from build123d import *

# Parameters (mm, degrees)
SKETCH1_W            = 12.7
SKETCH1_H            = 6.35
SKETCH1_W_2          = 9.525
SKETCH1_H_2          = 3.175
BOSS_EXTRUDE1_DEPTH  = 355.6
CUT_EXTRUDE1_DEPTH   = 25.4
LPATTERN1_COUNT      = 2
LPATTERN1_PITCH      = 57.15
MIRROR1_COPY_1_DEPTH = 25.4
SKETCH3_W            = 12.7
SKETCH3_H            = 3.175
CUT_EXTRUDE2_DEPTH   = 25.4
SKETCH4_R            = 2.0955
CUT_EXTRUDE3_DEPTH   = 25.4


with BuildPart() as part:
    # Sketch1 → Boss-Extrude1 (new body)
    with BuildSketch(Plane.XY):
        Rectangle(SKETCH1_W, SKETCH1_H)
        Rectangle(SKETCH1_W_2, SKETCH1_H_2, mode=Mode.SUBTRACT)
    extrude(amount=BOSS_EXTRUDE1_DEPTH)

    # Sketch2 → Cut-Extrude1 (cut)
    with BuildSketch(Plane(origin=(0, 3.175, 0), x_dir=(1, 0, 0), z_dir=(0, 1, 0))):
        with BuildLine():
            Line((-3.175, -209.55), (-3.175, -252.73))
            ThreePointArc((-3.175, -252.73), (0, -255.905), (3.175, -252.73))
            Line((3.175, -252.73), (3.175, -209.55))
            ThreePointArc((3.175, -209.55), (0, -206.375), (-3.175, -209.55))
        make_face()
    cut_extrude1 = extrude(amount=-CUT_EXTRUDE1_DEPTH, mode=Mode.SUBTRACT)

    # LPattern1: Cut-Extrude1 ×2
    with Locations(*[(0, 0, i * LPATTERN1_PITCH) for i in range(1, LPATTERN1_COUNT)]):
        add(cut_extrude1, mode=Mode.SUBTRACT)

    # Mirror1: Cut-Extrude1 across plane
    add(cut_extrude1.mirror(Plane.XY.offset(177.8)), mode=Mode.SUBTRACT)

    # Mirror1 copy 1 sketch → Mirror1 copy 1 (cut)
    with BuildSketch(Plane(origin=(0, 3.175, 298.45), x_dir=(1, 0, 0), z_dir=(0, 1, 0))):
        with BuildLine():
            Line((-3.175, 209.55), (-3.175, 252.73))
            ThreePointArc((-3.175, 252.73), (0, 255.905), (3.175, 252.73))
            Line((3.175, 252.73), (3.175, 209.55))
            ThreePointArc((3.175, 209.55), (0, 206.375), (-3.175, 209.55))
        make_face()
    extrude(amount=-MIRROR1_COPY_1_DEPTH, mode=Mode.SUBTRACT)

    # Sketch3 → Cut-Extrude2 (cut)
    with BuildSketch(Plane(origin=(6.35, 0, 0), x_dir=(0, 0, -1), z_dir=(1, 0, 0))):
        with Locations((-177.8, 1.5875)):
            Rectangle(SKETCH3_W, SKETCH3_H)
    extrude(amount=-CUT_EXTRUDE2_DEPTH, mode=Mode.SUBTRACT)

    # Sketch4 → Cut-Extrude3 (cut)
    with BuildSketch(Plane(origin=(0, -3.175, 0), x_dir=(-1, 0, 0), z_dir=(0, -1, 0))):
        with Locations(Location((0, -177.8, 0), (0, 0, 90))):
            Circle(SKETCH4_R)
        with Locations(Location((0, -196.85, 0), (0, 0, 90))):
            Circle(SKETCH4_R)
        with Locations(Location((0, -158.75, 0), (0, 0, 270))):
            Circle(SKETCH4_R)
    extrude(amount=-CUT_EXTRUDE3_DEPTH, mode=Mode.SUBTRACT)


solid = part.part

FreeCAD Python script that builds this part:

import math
import FreeCAD as App
import Part
import Sketcher
from FreeCAD import Vector
Q = App.Units.Quantity


def add_polygon(sketch, points):
    """Adds a closed chain of lines whose ends are joined by coincident constraints."""
    first, n = sketch.GeometryCount, len(points)
    for a, b in zip(points, points[1:] + points[:1]):
        sketch.addGeometry(Part.LineSegment(App.Vector(*a, 0), App.Vector(*b, 0)), False)
    for i in range(n):
        sketch.addConstraint(Sketcher.Constraint("Coincident", first + i, 2, first + (i + 1) % n, 1))

doc = App.newDocument("Part")
body = doc.addObject("PartDesign::Body", "Body")

sketch1 = body.newObject("Sketcher::SketchObject", "Sketch")
sketch1.AttachmentSupport = (doc.getObject("XY_Plane"), [""])
sketch1.MapMode = "FlatFace"
add_polygon(sketch1, [(-6.35, 3.175), (-6.35, -3.175), (6.35, -3.175), (6.35, 3.175)])
add_polygon(sketch1, [(4.7625, -1.5875), (-4.7625, -1.5875), (-4.7625, 1.5875), (4.7625, 1.5875)])
sketch1.addConstraint(Sketcher.Constraint("Vertical", 0))
sketch1.addConstraint(Sketcher.Constraint("Horizontal", 1))
sketch1.addConstraint(Sketcher.Constraint("Vertical", 2))
sketch1.addConstraint(Sketcher.Constraint("Horizontal", 3))
sketch1.addConstraint(Sketcher.Constraint("Horizontal", 4))
sketch1.addConstraint(Sketcher.Constraint("Vertical", 5))
sketch1.addConstraint(Sketcher.Constraint("Horizontal", 6))
sketch1.addConstraint(Sketcher.Constraint("Vertical", 7))
sketch1.addConstraint(Sketcher.Constraint("Symmetric", 0, 2, 2, 2, -1, 1))
sketch1.addConstraint(Sketcher.Constraint("Symmetric", 4, 2, 6, 2, -1, 1))
sketch1.addConstraint(Sketcher.Constraint("DistanceX", 1, 1, 1, 2, Q("0.5 in")))
sketch1.addConstraint(Sketcher.Constraint("DistanceY", 0, 2, 0, 1, Q("0.25 in")))
sketch1.addConstraint(Sketcher.Constraint("DistanceX", 4, 2, 4, 1, Q("0.375 in")))
sketch1.addConstraint(Sketcher.Constraint("DistanceY", 5, 1, 5, 2, Q("0.125 in")))
pad1 = body.newObject("PartDesign::Pad", "Pad")
pad1.Profile = sketch1
pad1.Length = Q("14 in")

sketch2 = body.newObject("Sketcher::SketchObject", "Sketch001")
sketch2.AttachmentSupport = (doc.getObject("XZ_Plane"), [""])
sketch2.MapMode = "FlatFace"
sketch2.AttachmentOffset = App.Placement(Vector(0, 0, -0.125 * 25.4), App.Rotation())
sketch2.addGeometry(Part.LineSegment(Vector(-3.175, 209.55, 0), Vector(-3.175, 252.73, 0)), False)
sketch2.addGeometry(Part.ArcOfCircle(Part.Circle(Vector(0, 252.73, 0), Vector(0, 0, 1), 3.175), math.radians(0), math.radians(180)), False)
sketch2.addGeometry(Part.LineSegment(Vector(3.175, 252.73, 0), Vector(3.175, 209.55, 0)), False)
sketch2.addGeometry(Part.ArcOfCircle(Part.Circle(Vector(0, 209.55, 0), Vector(0, 0, 1), 3.175), math.radians(180), math.radians(360)), False)
sketch2.addConstraint(Sketcher.Constraint("Tangent", 0, 2, 1, 2))
sketch2.addConstraint(Sketcher.Constraint("Tangent", 1, 1, 2, 1))
sketch2.addConstraint(Sketcher.Constraint("Tangent", 2, 2, 3, 2))
sketch2.addConstraint(Sketcher.Constraint("Tangent", 3, 1, 0, 1))
sketch2.addConstraint(Sketcher.Constraint("Vertical", 0))
sketch2.addConstraint(Sketcher.Constraint("Vertical", 2))
sketch2.addConstraint(Sketcher.Constraint("PointOnObject", 1, 3, -2))
sketch2.addConstraint(Sketcher.Constraint("DistanceY", 0, 1, 0, 2, Q("1.7 in")))
sketch2.addConstraint(Sketcher.Constraint("Radius", 1, Q("0.125 in")))
sketch2.addConstraint(Sketcher.Constraint("DistanceY", -1, 1, 1, 3, Q("9.95 in")))
pocket1 = body.newObject("PartDesign::Pocket", "Pocket")
pocket1.Profile = sketch2
pocket1.Length = Q("1 in")
pocket1.Reversed = True
doc.recompute()

linearpattern = body.newObject("PartDesign::LinearPattern", "LinearPattern")
linearpattern.Originals = [pocket1]
linearpattern.Direction = (doc.getObject("Z_Axis"), [""])
linearpattern.Mode = "offset"
linearpattern.Offset = Q("2.25 in")
linearpattern.Occurrences = 2
body.Tip = linearpattern
doc.recompute()

datumplane = body.newObject("PartDesign::Plane", "DatumPlane")
datumplane.AttachmentSupport = (doc.getObject("XY_Plane"), [""])
datumplane.MapMode = "FlatFace"
datumplane.AttachmentOffset = App.Placement(Vector(0, 0, 7 * 25.4), App.Rotation())
mirrored = body.newObject("PartDesign::Mirrored", "Mirrored")
mirrored.Originals = [pocket1]
mirrored.MirrorPlane = (datumplane, [""])
body.Tip = mirrored

sketch3 = body.newObject("Sketcher::SketchObject", "Sketch002")
sketch3.AttachmentSupport = (doc.getObject("XZ_Plane"), [""])
sketch3.MapMode = "FlatFace"
sketch3.AttachmentOffset = App.Placement(Vector(0, 0, -0.125 * 25.4), App.Rotation())
sketch3.addGeometry(Part.LineSegment(Vector(-3.175, 45.72, 0), Vector(-3.175, 88.9, 0)), False)
sketch3.addGeometry(Part.ArcOfCircle(Part.Circle(Vector(0, 88.9, 0), Vector(0, 0, 1), 3.175), math.radians(0), math.radians(180)), False)
sketch3.addGeometry(Part.LineSegment(Vector(3.175, 88.9, 0), Vector(3.175, 45.72, 0)), False)
sketch3.addGeometry(Part.ArcOfCircle(Part.Circle(Vector(0, 45.72, 0), Vector(0, 0, 1), 3.175), math.radians(180), math.radians(360)), False)
sketch3.addConstraint(Sketcher.Constraint("Tangent", 0, 2, 1, 2))
sketch3.addConstraint(Sketcher.Constraint("Tangent", 1, 1, 2, 1))
sketch3.addConstraint(Sketcher.Constraint("Tangent", 2, 2, 3, 2))
sketch3.addConstraint(Sketcher.Constraint("Tangent", 3, 1, 0, 1))
sketch3.addConstraint(Sketcher.Constraint("Vertical", 0))
sketch3.addConstraint(Sketcher.Constraint("Vertical", 2))
sketch3.addConstraint(Sketcher.Constraint("PointOnObject", 1, 3, -2))
sketch3.addConstraint(Sketcher.Constraint("DistanceY", 0, 1, 0, 2, Q("1.7 in")))
sketch3.addConstraint(Sketcher.Constraint("Radius", 1, Q("0.125 in")))
sketch3.addConstraint(Sketcher.Constraint("DistanceY", -1, 1, 1, 3, Q("3.5 in")))
pocket2 = body.newObject("PartDesign::Pocket", "Pocket001")
pocket2.Profile = sketch3
pocket2.Length = Q("1 in")
pocket2.Reversed = True

sketch4 = body.newObject("Sketcher::SketchObject", "Sketch003")
sketch4.AttachmentSupport = (doc.getObject("YZ_Plane"), [""])
sketch4.MapMode = "FlatFace"
sketch4.AttachmentOffset = App.Placement(Vector(0, 0, 0.25 * 25.4), App.Rotation())
add_polygon(sketch4, [(3.175, 184.15), (0, 184.15), (0, 171.45), (3.175, 171.45)])
sketch4.addConstraint(Sketcher.Constraint("Horizontal", 0))
sketch4.addConstraint(Sketcher.Constraint("Vertical", 1))
sketch4.addConstraint(Sketcher.Constraint("Horizontal", 2))
sketch4.addConstraint(Sketcher.Constraint("Vertical", 3))
sketch4.addConstraint(Sketcher.Constraint("PointOnObject", 0, 2, -2))
sketch4.addConstraint(Sketcher.Constraint("DistanceY", 1, 2, 1, 1, Q("0.5 in")))
sketch4.addConstraint(Sketcher.Constraint("DistanceX", 0, 2, 0, 1, Q("0.125 in")))
sketch4.addConstraint(Sketcher.Constraint("DistanceY", -1, 1, 0, 2, Q("7.25 in")))
pocket3 = body.newObject("PartDesign::Pocket", "Pocket002")
pocket3.Profile = sketch4
pocket3.Length = Q("1 in")

sketch5 = body.newObject("Sketcher::SketchObject", "Sketch004")
sketch5.AttachmentSupport = (doc.getObject("XZ_Plane"), [""])
sketch5.MapMode = "FlatFace"
sketch5.AttachmentOffset = App.Placement(Vector(0, 0, 0.125 * 25.4), App.Rotation())
sketch5.addGeometry(Part.Circle(Vector(0, 177.8, 0), Vector(0, 0, 1), 2.0955), False)
sketch5.addGeometry(Part.Circle(Vector(0, 196.85, 0), Vector(0, 0, 1), 2.0955), False)
sketch5.addGeometry(Part.Circle(Vector(0, 158.75, 0), Vector(0, 0, 1), 2.0955), False)
sketch5.addConstraint(Sketcher.Constraint("Equal", 0, 1))
sketch5.addConstraint(Sketcher.Constraint("Equal", 1, 2))
sketch5.addConstraint(Sketcher.Constraint("PointOnObject", 0, 3, -2))
sketch5.addConstraint(Sketcher.Constraint("PointOnObject", 1, 3, -2))
sketch5.addConstraint(Sketcher.Constraint("PointOnObject", 2, 3, -2))
sketch5.addConstraint(Sketcher.Constraint("Diameter", 0, Q("0.165 in")))
sketch5.addConstraint(Sketcher.Constraint("DistanceY", -1, 1, 0, 3, Q("7 in")))
sketch5.addConstraint(Sketcher.Constraint("DistanceY", 2, 3, 1, 3, Q("1.5 in")))
sketch5.addConstraint(Sketcher.Constraint("DistanceY", -1, 1, 1, 3, Q("7.75 in")))
pocket4 = body.newObject("PartDesign::Pocket", "Pocket003")
pocket4.Profile = sketch5
pocket4.Length = Q("1 in")

doc.recompute()
